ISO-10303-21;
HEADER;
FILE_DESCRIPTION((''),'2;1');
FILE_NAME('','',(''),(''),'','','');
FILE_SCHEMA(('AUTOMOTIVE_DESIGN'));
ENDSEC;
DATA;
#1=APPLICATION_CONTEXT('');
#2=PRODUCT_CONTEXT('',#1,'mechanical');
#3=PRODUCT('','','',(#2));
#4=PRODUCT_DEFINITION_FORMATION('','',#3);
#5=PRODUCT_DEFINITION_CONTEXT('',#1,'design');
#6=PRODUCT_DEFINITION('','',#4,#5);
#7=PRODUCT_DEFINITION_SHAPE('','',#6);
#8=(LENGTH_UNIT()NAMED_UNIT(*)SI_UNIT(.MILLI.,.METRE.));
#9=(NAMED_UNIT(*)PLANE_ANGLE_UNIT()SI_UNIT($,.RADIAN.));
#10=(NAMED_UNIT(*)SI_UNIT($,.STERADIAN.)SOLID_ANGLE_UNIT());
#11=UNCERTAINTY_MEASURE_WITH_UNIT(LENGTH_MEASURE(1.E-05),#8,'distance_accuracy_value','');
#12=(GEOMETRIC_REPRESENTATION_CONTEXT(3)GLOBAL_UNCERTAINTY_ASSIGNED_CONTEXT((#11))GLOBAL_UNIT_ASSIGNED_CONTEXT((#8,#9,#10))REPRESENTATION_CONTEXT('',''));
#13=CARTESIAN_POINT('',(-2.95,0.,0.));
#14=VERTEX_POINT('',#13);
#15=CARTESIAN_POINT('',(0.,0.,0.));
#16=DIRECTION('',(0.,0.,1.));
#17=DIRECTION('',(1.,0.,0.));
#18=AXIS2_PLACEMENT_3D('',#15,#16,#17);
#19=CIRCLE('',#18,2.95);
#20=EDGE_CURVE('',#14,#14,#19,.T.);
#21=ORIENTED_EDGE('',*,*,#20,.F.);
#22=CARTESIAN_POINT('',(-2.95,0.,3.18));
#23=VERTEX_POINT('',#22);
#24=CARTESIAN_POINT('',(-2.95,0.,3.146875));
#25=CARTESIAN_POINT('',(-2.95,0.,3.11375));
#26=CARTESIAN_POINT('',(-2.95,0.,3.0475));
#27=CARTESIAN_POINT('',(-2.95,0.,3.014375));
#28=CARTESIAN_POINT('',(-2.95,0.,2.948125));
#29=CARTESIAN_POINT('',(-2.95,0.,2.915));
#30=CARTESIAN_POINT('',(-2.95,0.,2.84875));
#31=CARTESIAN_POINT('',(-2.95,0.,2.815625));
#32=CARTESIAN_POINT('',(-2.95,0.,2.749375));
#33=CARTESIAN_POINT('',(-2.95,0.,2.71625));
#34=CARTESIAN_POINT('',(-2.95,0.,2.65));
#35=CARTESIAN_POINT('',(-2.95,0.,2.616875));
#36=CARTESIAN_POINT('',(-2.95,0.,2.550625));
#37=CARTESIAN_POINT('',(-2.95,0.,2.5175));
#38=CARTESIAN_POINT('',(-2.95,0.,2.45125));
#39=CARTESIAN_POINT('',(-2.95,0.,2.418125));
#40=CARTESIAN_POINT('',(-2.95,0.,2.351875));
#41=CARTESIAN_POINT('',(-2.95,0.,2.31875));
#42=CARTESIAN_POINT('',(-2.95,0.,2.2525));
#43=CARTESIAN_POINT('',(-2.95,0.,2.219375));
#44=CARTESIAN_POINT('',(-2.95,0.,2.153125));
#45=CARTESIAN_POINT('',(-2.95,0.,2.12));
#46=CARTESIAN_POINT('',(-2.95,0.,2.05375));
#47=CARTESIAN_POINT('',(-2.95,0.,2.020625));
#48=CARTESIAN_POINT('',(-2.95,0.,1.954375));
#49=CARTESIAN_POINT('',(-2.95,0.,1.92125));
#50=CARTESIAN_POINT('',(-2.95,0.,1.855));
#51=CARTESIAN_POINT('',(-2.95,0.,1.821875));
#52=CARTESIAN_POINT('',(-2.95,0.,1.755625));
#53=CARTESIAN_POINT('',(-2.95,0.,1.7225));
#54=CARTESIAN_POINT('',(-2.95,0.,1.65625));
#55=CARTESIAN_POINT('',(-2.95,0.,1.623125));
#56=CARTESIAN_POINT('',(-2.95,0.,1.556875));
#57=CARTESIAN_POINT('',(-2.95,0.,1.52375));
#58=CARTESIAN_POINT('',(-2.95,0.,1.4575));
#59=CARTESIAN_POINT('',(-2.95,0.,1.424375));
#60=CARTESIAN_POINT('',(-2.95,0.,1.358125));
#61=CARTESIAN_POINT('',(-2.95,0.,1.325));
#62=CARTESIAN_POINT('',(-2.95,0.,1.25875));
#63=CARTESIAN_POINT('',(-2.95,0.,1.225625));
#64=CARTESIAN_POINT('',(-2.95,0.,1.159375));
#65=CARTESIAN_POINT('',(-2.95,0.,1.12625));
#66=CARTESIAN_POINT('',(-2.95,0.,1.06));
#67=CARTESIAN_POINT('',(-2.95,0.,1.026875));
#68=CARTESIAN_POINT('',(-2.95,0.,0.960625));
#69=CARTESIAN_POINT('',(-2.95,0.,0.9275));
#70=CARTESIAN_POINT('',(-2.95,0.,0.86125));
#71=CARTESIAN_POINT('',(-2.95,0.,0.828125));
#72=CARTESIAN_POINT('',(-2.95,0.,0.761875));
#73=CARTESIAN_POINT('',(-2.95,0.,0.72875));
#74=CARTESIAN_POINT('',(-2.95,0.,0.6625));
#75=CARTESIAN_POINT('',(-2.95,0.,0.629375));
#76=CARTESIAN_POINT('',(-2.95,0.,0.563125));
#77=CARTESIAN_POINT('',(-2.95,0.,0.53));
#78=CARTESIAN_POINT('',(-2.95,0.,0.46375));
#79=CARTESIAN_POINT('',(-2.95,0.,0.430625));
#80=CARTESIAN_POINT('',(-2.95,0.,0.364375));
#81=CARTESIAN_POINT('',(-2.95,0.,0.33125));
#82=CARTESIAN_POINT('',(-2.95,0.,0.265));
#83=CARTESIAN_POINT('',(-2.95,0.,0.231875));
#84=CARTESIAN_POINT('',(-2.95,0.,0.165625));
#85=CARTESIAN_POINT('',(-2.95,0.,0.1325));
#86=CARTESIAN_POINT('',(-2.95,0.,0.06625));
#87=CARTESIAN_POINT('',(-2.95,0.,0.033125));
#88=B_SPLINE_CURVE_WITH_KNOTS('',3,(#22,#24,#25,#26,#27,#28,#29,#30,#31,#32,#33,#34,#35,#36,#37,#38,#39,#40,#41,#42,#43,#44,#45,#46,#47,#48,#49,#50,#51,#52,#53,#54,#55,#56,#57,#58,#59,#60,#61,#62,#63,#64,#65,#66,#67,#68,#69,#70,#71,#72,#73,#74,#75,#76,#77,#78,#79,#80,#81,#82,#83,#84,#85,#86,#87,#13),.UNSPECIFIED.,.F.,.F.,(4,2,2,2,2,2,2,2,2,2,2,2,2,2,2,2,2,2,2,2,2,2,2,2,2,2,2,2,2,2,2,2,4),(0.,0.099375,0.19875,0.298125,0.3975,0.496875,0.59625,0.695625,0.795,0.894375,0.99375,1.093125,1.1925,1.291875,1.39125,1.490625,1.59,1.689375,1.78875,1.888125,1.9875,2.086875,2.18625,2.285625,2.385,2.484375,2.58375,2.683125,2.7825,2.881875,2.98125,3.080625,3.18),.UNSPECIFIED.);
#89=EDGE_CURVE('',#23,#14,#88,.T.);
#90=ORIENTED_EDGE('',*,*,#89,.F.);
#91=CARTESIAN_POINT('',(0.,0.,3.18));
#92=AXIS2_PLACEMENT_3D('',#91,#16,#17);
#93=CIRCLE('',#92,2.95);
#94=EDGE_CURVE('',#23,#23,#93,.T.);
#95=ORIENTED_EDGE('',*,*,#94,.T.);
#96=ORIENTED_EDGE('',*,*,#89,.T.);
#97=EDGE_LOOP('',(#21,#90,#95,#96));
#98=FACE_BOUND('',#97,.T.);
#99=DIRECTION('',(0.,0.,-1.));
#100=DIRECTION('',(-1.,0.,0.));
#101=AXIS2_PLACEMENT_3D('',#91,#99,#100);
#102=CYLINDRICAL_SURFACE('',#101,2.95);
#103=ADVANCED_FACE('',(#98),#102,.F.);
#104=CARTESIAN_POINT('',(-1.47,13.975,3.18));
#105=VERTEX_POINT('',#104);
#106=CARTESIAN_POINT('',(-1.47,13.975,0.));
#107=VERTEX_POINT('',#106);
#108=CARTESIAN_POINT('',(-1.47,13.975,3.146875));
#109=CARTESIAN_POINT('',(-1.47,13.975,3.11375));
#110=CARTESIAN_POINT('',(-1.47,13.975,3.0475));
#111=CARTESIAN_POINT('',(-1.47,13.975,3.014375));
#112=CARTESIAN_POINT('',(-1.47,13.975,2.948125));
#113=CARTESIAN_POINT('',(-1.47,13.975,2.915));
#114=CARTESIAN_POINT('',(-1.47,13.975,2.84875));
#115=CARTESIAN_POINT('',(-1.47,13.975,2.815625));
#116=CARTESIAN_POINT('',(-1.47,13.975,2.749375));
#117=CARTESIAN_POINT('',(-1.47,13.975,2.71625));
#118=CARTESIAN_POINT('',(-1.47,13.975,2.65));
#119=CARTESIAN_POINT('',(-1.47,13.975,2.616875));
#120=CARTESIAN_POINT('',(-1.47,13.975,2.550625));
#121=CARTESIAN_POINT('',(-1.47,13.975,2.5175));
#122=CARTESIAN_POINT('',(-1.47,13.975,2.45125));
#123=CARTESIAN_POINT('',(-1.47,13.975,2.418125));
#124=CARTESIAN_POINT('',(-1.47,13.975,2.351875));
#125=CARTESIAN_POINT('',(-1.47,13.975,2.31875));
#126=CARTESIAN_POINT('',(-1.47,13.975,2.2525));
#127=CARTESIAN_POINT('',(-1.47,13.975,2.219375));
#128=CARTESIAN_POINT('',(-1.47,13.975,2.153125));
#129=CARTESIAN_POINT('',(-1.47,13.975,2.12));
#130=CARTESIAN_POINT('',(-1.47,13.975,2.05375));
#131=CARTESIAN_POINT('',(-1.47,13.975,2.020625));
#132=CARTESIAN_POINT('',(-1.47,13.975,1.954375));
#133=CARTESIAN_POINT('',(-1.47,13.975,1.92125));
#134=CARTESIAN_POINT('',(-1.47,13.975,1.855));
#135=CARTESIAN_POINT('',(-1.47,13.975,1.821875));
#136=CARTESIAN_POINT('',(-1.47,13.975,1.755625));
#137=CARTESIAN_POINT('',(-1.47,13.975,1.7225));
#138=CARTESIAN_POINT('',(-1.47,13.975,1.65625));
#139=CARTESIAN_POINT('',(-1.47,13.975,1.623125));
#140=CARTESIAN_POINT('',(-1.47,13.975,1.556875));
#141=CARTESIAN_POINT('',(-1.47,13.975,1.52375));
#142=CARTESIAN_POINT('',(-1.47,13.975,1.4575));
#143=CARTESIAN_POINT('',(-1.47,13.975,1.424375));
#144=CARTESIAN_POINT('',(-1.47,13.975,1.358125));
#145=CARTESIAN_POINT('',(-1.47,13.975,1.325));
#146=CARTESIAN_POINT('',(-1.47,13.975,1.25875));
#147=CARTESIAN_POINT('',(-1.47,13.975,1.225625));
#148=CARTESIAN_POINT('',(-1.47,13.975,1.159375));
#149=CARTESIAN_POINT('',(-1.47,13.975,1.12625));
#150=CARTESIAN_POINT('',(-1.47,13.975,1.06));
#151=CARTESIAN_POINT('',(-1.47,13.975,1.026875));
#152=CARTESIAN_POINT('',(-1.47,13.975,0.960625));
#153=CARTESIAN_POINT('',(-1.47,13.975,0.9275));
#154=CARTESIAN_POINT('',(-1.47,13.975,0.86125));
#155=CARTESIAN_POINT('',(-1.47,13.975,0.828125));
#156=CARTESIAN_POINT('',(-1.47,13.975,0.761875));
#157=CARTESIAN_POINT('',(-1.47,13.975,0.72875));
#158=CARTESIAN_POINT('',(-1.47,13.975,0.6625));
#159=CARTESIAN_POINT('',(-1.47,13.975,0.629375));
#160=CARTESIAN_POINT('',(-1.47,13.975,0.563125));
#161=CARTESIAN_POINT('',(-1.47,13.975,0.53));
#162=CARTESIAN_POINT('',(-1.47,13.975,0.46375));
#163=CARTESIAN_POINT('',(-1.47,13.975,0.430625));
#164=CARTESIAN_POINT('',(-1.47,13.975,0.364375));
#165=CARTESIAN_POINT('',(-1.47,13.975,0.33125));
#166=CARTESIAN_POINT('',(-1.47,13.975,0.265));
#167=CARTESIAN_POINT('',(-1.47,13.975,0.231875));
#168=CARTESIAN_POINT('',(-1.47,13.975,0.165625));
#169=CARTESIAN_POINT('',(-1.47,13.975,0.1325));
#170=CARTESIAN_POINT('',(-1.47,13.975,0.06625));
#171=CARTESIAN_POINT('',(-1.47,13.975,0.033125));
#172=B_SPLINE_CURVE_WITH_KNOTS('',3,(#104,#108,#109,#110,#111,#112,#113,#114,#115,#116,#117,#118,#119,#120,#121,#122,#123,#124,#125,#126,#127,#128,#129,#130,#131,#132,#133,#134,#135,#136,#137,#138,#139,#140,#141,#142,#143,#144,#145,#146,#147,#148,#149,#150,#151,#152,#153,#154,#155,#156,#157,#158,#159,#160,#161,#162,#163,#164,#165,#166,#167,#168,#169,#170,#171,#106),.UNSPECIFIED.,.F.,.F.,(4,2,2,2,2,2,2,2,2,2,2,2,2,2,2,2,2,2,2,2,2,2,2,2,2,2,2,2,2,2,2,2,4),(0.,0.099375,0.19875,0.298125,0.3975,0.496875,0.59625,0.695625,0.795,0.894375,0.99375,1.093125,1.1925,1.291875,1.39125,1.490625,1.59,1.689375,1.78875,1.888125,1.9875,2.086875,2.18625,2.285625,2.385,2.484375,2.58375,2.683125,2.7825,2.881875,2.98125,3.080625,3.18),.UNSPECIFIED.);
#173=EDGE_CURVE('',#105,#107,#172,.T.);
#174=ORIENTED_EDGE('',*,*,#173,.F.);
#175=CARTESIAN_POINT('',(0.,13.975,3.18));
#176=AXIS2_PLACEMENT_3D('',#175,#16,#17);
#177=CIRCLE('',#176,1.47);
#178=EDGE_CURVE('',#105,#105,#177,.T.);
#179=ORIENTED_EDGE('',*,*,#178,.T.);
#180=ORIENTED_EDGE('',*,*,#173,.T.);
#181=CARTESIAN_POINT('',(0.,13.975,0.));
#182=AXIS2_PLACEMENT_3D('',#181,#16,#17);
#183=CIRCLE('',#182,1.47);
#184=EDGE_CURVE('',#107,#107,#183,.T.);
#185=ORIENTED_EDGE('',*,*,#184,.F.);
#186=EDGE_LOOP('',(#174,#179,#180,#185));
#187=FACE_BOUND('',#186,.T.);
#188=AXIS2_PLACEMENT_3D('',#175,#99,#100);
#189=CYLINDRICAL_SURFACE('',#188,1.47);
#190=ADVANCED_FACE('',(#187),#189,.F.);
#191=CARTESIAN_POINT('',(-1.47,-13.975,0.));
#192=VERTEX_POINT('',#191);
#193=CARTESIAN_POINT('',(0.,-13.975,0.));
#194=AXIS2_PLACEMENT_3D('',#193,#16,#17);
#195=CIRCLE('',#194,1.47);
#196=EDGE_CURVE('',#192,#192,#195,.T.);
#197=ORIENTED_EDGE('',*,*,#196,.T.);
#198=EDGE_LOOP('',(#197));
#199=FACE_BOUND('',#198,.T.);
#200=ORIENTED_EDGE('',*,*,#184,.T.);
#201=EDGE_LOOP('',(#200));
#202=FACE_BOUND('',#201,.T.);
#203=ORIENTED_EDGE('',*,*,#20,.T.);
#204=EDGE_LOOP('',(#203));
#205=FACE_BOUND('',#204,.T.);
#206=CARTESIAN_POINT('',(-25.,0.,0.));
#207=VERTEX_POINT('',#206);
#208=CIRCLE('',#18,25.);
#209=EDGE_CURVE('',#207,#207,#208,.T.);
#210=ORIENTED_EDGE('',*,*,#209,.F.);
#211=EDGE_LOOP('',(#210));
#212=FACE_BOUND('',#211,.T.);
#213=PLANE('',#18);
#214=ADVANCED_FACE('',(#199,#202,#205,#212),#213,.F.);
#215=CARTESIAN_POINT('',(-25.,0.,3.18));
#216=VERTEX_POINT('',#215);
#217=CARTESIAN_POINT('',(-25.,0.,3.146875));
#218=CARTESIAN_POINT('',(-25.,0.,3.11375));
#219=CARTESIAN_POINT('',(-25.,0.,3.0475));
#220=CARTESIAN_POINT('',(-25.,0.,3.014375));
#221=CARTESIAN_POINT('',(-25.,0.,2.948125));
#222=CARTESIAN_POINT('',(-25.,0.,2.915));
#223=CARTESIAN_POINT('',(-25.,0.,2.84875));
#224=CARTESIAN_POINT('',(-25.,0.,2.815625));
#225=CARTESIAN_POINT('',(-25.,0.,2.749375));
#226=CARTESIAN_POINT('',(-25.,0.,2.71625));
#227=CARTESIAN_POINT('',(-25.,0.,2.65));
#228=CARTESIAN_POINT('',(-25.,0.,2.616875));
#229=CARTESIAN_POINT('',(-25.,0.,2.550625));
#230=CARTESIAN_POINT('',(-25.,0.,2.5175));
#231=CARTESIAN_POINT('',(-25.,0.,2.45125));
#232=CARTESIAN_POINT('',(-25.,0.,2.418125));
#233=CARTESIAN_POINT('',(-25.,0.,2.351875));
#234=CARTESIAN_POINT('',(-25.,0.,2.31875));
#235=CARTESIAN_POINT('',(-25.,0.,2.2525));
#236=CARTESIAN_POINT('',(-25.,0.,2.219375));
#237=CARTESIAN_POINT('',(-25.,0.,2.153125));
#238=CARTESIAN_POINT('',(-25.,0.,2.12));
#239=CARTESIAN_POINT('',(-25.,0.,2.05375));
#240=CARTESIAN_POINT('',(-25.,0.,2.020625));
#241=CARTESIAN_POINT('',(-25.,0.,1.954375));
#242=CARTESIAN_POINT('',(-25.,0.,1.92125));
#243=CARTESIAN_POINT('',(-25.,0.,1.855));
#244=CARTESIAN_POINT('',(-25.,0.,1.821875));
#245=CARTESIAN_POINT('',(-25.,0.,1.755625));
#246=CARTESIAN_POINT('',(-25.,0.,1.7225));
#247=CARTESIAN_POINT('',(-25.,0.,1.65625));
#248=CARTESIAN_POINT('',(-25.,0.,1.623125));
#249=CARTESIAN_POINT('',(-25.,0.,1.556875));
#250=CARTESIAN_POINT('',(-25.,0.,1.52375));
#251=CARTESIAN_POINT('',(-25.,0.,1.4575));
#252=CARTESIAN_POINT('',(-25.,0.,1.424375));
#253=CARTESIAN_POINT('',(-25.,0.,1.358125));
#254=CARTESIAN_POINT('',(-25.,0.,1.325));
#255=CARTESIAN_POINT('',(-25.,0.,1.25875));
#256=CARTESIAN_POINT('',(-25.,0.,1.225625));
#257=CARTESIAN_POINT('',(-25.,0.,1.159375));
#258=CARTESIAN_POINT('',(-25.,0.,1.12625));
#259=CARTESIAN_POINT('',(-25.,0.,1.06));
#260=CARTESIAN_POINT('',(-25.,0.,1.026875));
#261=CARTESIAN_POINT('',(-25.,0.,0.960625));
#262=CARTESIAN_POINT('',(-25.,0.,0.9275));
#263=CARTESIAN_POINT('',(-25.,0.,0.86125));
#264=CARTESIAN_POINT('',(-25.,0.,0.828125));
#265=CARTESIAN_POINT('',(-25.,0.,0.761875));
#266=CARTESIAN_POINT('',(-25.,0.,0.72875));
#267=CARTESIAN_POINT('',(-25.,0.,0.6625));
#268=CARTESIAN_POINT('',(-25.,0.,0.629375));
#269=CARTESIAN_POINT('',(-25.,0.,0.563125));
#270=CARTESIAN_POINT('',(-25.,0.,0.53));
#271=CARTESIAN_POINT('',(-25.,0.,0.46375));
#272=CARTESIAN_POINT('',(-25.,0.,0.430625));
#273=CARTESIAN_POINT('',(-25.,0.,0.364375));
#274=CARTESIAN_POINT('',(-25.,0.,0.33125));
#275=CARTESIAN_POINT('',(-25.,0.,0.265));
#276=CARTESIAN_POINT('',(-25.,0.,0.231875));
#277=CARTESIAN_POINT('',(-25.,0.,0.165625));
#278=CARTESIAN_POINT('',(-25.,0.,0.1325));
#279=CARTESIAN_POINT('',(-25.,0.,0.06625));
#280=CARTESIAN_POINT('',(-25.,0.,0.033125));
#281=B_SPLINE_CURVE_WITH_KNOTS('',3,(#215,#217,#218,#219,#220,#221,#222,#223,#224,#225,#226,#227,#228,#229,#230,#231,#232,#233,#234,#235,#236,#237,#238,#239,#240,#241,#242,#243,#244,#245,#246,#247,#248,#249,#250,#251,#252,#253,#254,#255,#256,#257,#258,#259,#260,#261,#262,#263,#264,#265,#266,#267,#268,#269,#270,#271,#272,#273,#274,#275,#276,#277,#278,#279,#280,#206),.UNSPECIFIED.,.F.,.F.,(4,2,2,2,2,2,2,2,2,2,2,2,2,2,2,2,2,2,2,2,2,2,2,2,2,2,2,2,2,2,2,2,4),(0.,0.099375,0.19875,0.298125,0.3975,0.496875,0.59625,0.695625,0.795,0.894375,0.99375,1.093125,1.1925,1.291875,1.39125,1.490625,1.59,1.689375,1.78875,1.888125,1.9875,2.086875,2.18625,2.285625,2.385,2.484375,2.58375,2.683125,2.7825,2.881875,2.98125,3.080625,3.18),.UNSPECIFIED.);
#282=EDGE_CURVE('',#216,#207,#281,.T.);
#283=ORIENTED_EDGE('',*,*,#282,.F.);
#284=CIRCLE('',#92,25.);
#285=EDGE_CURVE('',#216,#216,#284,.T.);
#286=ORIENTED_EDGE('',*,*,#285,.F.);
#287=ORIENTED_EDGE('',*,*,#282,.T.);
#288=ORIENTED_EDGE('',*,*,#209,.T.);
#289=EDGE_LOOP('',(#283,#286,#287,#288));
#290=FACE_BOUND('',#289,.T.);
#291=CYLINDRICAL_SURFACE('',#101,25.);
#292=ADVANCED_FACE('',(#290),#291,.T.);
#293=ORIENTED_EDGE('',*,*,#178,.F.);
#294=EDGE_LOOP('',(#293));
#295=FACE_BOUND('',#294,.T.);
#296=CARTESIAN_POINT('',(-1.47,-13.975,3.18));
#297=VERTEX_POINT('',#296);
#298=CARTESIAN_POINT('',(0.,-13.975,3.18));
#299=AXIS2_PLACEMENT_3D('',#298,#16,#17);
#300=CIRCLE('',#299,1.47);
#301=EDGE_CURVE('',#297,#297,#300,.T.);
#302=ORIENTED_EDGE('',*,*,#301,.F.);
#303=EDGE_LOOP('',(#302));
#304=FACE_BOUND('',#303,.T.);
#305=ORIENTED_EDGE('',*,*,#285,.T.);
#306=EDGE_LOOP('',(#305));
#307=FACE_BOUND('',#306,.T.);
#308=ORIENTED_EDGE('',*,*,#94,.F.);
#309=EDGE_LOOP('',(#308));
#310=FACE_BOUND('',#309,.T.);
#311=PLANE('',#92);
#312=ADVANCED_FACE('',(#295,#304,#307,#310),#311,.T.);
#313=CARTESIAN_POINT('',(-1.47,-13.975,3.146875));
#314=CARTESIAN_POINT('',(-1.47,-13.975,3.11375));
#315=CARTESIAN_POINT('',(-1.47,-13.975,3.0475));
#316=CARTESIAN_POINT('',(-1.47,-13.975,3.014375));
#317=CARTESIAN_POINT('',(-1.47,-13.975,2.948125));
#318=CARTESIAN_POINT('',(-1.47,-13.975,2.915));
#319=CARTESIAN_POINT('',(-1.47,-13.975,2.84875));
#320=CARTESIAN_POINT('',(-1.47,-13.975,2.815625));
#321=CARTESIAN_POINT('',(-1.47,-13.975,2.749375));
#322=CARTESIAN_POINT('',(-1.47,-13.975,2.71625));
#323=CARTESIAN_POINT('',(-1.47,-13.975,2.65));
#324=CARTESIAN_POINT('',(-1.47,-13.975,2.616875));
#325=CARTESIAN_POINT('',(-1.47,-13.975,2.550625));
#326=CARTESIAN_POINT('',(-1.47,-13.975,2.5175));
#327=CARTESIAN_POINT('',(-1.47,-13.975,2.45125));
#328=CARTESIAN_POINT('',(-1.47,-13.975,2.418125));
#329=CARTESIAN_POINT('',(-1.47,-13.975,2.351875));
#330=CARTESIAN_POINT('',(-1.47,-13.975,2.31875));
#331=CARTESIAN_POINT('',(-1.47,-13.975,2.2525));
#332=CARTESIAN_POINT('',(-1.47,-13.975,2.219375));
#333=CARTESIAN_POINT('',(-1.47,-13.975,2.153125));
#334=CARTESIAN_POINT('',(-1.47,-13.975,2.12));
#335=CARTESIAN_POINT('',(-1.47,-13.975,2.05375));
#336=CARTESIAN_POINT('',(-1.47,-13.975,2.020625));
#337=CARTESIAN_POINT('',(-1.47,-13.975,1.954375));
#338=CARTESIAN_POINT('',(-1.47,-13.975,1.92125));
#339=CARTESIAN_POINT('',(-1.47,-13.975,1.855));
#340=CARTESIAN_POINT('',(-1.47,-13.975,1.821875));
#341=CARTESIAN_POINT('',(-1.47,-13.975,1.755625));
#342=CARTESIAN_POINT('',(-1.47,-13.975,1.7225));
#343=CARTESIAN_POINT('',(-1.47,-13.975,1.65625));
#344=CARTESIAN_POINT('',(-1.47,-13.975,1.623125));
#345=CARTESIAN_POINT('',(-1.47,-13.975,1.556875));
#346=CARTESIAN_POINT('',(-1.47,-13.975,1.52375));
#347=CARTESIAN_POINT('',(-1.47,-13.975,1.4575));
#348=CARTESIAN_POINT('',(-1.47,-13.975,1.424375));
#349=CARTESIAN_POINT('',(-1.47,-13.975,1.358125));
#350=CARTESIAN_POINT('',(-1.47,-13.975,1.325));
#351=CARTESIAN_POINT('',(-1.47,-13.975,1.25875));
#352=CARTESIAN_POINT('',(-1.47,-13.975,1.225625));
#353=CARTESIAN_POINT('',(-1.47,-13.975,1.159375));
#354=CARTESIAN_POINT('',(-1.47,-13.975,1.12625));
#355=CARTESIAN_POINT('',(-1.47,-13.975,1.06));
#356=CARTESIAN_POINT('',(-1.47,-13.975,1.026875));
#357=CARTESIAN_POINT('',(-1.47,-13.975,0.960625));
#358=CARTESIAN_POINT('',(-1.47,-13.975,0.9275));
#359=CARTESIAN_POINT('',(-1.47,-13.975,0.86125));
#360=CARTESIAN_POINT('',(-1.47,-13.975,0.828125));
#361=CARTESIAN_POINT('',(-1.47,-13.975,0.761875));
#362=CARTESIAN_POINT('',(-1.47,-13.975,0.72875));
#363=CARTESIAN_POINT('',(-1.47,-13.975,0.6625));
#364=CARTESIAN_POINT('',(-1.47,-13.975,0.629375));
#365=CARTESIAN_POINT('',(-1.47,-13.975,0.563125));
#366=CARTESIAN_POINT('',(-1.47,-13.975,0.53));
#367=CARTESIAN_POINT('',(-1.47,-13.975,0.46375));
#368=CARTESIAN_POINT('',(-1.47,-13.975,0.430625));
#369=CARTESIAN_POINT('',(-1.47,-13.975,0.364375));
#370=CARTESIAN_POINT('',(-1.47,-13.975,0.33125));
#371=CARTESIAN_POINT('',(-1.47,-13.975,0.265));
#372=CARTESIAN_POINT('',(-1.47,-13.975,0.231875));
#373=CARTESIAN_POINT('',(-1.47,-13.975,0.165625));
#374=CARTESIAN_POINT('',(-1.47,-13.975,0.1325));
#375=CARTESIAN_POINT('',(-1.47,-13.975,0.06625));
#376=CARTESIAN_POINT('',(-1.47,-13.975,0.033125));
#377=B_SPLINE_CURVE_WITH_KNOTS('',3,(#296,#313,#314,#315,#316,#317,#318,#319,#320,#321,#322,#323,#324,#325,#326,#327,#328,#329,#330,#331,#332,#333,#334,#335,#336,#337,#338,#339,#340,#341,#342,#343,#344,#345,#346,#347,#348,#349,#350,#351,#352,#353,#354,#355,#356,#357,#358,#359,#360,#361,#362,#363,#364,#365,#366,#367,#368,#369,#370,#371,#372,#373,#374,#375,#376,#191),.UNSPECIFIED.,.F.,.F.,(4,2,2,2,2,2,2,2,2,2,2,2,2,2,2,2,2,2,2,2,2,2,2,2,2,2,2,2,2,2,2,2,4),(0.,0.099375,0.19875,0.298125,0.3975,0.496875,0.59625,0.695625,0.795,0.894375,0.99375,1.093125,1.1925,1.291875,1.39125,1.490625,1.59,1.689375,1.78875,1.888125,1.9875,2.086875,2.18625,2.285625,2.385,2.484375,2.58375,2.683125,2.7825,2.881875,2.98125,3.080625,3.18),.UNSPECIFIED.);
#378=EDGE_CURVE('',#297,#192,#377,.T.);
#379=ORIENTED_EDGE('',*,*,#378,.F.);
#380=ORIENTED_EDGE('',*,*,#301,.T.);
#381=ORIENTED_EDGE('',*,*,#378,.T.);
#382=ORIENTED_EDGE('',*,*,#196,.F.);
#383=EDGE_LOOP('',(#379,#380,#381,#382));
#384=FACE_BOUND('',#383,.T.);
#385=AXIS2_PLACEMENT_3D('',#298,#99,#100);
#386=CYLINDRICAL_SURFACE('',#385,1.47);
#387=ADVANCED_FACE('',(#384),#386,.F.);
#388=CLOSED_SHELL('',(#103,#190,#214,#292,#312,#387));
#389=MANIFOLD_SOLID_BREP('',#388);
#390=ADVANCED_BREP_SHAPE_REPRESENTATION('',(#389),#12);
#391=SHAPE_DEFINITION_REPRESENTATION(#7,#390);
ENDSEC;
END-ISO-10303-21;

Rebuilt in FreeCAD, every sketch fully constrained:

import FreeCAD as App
import Part
import Sketcher
Q = App.Units.Quantity

doc = App.newDocument("Part")
body = doc.addObject("PartDesign::Body", "Body")

# Sketch on XY plane
sketch1 = doc.addObject("Sketcher::SketchObject", "Sketch")
body.addObject(sketch1)
sketch1.AttachmentSupport = (doc.XY_Plane, [""])
sketch1.MapMode = "FlatFace"
sketch1.addGeometry(Part.Circle(App.Vector(0, 0, 0), App.Vector(0, 0, 1), 25), False)
sketch1.addGeometry(Part.Circle(App.Vector(0, 14, 0), App.Vector(0, 0, 1), 1.5), False)
sketch1.addGeometry(Part.Circle(App.Vector(0, 0, 0), App.Vector(0, 0, 1), 3), False)
sketch1.addGeometry(Part.Circle(App.Vector(0, -14, 0), App.Vector(0, 0, 1), 1.5), False)
sketch1.addConstraint(Sketcher.Constraint("Coincident", 0, 3, -1, 1))
sketch1.addConstraint(Sketcher.Constraint("Coincident", 2, 3, -1, 1))
sketch1.addConstraint(Sketcher.Constraint("Equal", 1, 3))
sketch1.addConstraint(Sketcher.Constraint("Symmetric", 1, 3, 3, 3, -1, 1))
sketch1.addConstraint(Sketcher.Constraint("PointOnObject", 1, 3, -2))
sketch1.addConstraint(Sketcher.Constraint("Diameter", 0, Q("50 mm")))
sketch1.addConstraint(Sketcher.Constraint("Diameter", 2, Q("5.9 mm")))
sketch1.addConstraint(Sketcher.Constraint("Diameter", 1, Q("2.94 mm")))
sketch1.addConstraint(Sketcher.Constraint("DistanceY", 3, 3, 1, 3, Q("27.95 mm")))
pad1 = doc.addObject("PartDesign::Pad", "Pad")
body.addObject(pad1)
pad1.Profile = sketch1
pad1.Length = 3.18

doc.recompute()
